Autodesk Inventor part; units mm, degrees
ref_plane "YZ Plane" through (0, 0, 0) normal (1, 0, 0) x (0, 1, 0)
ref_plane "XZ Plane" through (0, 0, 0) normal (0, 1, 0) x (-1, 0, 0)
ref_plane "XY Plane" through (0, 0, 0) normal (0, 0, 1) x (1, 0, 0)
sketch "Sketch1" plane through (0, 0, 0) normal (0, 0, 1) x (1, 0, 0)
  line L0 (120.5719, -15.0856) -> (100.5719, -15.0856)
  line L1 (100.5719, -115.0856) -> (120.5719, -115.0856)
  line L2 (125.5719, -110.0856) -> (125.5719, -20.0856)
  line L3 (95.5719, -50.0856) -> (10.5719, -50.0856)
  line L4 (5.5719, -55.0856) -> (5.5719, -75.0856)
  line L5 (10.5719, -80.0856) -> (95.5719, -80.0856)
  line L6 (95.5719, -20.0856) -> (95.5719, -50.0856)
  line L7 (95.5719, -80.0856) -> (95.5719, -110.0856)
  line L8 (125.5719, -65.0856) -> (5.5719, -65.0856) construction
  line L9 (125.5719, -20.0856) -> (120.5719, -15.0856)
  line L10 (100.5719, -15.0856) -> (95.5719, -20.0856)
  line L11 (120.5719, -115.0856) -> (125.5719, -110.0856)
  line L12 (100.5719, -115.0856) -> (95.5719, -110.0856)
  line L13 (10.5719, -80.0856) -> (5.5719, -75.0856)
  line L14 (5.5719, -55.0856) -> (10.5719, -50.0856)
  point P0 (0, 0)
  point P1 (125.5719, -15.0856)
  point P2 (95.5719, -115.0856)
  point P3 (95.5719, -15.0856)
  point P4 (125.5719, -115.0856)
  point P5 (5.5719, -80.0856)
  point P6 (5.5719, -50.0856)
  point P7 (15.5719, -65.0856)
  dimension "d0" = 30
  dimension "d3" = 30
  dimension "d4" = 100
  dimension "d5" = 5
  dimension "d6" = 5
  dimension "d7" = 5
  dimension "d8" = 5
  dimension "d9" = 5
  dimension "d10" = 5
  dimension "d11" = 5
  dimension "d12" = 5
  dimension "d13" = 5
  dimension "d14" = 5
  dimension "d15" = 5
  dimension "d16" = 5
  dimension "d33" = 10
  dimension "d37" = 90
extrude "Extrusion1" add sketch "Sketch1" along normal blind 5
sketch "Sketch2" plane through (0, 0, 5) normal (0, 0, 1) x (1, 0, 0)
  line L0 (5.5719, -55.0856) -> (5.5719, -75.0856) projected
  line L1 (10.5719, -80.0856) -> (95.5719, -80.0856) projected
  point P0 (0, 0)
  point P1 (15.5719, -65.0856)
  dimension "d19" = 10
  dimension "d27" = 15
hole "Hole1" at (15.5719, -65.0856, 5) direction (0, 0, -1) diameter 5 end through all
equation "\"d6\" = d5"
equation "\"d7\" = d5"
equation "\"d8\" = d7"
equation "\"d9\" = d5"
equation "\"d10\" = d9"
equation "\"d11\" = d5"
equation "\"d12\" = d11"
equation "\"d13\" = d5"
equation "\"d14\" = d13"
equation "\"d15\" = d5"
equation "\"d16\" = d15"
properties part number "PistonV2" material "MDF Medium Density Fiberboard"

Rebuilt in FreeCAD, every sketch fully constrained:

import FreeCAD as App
import Part
import Sketcher
from FreeCAD import Vector

doc = App.newDocument("Part")
params = doc.addObject("Spreadsheet::Sheet", "Params")
for row, (alias, value) in enumerate([
    ("sketch1_height", "30 mm"),
    ("sketch1_height2", "90 mm"),
    ("pad1_length", "5 mm"),
    ("sketch2_diameter", "5 mm"),
    ("hole_diameter", "5 mm"),
], start=1):
    params.set(f"A{row}", alias)
    params.set(f"B{row}", "=" + value)
    params.setAlias(f"B{row}", alias)

body = doc.addObject("PartDesign::Body", "Body")

# Sketch on XY plane
sketch1 = doc.addObject("Sketcher::SketchObject", "Sketch")
body.addObject(sketch1)
sketch1.AttachmentSupport = (doc.XY_Plane, [""])
sketch1.MapMode = "FlatFace"
sketch1.addGeometry([
    Part.LineSegment(Vector(125.5719, -20.0856, 0), Vector(120.5719, -15.0856, 0)),  # 0
    Part.LineSegment(Vector(120.5719, -15.0856, 0), Vector(100.5719, -15.0856, 0)),  # 1
    Part.LineSegment(Vector(100.5719, -15.0856, 0), Vector(95.5719, -20.0856, 0)),  # 2
    Part.LineSegment(Vector(95.5719, -20.0856, 0), Vector(95.5719, -50.0856, 0)),  # 3
    Part.LineSegment(Vector(95.5719, -50.0856, 0), Vector(10.5719, -50.0856, 0)),  # 4
    Part.LineSegment(Vector(10.5719, -50.0856, 0), Vector(5.5719, -55.0856, 0)),  # 5
    Part.LineSegment(Vector(5.5719, -55.0856, 0), Vector(5.5719, -75.0856, 0)),  # 6
    Part.LineSegment(Vector(5.5719, -75.0856, 0), Vector(10.5719, -80.0856, 0)),  # 7
    Part.LineSegment(Vector(10.5719, -80.0856, 0), Vector(95.5719, -80.0856, 0)),  # 8
    Part.LineSegment(Vector(95.5719, -80.0856, 0), Vector(95.5719, -110.0856, 0)),  # 9
    Part.LineSegment(Vector(95.5719, -110.0856, 0), Vector(100.5719, -115.0856, 0)),  # 10
    Part.LineSegment(Vector(100.5719, -115.0856, 0), Vector(120.5719, -115.0856, 0)),  # 11
    Part.LineSegment(Vector(120.5719, -115.0856, 0), Vector(125.5719, -110.0856, 0)),  # 12
    Part.LineSegment(Vector(125.5719, -110.0856, 0), Vector(125.5719, -20.0856, 0)),  # 13
], False)
sketch1.addConstraint([
    Sketcher.Constraint("Coincident", 0, 2, 1, 1),
    Sketcher.Constraint("Coincident", 1, 2, 2, 1),
    Sketcher.Constraint("Coincident", 2, 2, 3, 1),
    Sketcher.Constraint("Coincident", 3, 2, 4, 1),
    Sketcher.Constraint("Coincident", 4, 2, 5, 1),
    Sketcher.Constraint("Coincident", 5, 2, 6, 1),
    Sketcher.Constraint("Coincident", 6, 2, 7, 1),
    Sketcher.Constraint("Coincident", 7, 2, 8, 1),
    Sketcher.Constraint("Coincident", 8, 2, 9, 1),
    Sketcher.Constraint("Coincident", 9, 2, 10, 1),
    Sketcher.Constraint("Coincident", 10, 2, 11, 1),
    Sketcher.Constraint("Coincident", 11, 2, 12, 1),
    Sketcher.Constraint("Coincident", 12, 2, 13, 1),
    Sketcher.Constraint("Coincident", 13, 2, 0, 1),
    Sketcher.Constraint("Horizontal", 1),
    Sketcher.Constraint("Vertical", 3),
    Sketcher.Constraint("Horizontal", 4),
    Sketcher.Constraint("Vertical", 6),
    Sketcher.Constraint("Horizontal", 8),
    Sketcher.Constraint("Vertical", 9),
    Sketcher.Constraint("Horizontal", 11),
    Sketcher.Constraint("Vertical", 13),
    Sketcher.Constraint("Perpendicular", 0, 2),
    Sketcher.Constraint("Parallel", 2, 5),
    Sketcher.Constraint("Perpendicular", 5, 7),
    Sketcher.Constraint("Parallel", 7, 10),
    Sketcher.Constraint("Perpendicular", 10, 12),
    Sketcher.Constraint("Horizontal", 9, 2, 12, 2),
    Sketcher.Constraint("Horizontal", 2, 2, 13, 2),
    Sketcher.Constraint("Vertical", 4, 2, 7, 2),
    Sketcher.Constraint("Vertical", 3, 2, 8, 2),
    Sketcher.Constraint("Vertical", 1, 2, 10, 2),
    Sketcher.Constraint("Vertical", 0, 2, 11, 2),
    Sketcher.Constraint("Equal", 11, 6),
    Sketcher.Constraint("Equal", 3, 9),
    Sketcher.Constraint("Equal", 2, 5),
    Sketcher.Constraint("DistanceY", 3, 2, 3, 1, 30.0),
    Sketcher.Constraint("DistanceY", 13, 1, 13, 2, 90.0),
    Sketcher.Constraint("DistanceX", 2, 2, 1, 2, 5.0),
    Sketcher.Constraint("DistanceX", 4, 2, 1, 2, 90.0),
    Sketcher.Constraint("DistanceX", -1, 1, 0, 2, 120.572),
    Sketcher.Constraint("DistanceY", 0, 2, -1, 1, 15.0856),
])
sketch1.setExpression("Constraints[36]", "Params.sketch1_height")
sketch1.setExpression("Constraints[37]", "Params.sketch1_height2")
pad1 = doc.addObject("PartDesign::Pad", "Pad")
body.addObject(pad1)
pad1.Profile = sketch1
pad1.setExpression("Length", "Params.pad1_length")

# Sketch on XY plane
sketch2 = doc.addObject("Sketcher::SketchObject", "Sketch001")
body.addObject(sketch2)
sketch2.AttachmentSupport = (doc.XY_Plane, [""])
sketch2.MapMode = "FlatFace"
sketch2.AttachmentOffset = App.Placement(Vector(0, 0, 5), App.Rotation())
sketch2.addGeometry(Part.Circle(Vector(15.5719, -65.0856, 0), Vector(0, 0, 1), 2.5), False)
sketch2.addConstraint([
    Sketcher.Constraint("Diameter", 0, 5.0),
    Sketcher.Constraint("DistanceX", -1, 1, 0, 3, 15.572),
    Sketcher.Constraint("DistanceY", 0, 3, -1, 1, 65.0856),
])
sketch2.setExpression("Constraints[0]", "Params.sketch2_diameter")
doc.recompute()
hole = doc.addObject("PartDesign::Hole", "Hole")
body.addObject(hole)
hole.Profile = sketch2
hole.ThreadType = "None"
hole.setExpression("Diameter", "Params.hole_diameter")
hole.DepthType = "ThroughAll"

doc.recompute()
